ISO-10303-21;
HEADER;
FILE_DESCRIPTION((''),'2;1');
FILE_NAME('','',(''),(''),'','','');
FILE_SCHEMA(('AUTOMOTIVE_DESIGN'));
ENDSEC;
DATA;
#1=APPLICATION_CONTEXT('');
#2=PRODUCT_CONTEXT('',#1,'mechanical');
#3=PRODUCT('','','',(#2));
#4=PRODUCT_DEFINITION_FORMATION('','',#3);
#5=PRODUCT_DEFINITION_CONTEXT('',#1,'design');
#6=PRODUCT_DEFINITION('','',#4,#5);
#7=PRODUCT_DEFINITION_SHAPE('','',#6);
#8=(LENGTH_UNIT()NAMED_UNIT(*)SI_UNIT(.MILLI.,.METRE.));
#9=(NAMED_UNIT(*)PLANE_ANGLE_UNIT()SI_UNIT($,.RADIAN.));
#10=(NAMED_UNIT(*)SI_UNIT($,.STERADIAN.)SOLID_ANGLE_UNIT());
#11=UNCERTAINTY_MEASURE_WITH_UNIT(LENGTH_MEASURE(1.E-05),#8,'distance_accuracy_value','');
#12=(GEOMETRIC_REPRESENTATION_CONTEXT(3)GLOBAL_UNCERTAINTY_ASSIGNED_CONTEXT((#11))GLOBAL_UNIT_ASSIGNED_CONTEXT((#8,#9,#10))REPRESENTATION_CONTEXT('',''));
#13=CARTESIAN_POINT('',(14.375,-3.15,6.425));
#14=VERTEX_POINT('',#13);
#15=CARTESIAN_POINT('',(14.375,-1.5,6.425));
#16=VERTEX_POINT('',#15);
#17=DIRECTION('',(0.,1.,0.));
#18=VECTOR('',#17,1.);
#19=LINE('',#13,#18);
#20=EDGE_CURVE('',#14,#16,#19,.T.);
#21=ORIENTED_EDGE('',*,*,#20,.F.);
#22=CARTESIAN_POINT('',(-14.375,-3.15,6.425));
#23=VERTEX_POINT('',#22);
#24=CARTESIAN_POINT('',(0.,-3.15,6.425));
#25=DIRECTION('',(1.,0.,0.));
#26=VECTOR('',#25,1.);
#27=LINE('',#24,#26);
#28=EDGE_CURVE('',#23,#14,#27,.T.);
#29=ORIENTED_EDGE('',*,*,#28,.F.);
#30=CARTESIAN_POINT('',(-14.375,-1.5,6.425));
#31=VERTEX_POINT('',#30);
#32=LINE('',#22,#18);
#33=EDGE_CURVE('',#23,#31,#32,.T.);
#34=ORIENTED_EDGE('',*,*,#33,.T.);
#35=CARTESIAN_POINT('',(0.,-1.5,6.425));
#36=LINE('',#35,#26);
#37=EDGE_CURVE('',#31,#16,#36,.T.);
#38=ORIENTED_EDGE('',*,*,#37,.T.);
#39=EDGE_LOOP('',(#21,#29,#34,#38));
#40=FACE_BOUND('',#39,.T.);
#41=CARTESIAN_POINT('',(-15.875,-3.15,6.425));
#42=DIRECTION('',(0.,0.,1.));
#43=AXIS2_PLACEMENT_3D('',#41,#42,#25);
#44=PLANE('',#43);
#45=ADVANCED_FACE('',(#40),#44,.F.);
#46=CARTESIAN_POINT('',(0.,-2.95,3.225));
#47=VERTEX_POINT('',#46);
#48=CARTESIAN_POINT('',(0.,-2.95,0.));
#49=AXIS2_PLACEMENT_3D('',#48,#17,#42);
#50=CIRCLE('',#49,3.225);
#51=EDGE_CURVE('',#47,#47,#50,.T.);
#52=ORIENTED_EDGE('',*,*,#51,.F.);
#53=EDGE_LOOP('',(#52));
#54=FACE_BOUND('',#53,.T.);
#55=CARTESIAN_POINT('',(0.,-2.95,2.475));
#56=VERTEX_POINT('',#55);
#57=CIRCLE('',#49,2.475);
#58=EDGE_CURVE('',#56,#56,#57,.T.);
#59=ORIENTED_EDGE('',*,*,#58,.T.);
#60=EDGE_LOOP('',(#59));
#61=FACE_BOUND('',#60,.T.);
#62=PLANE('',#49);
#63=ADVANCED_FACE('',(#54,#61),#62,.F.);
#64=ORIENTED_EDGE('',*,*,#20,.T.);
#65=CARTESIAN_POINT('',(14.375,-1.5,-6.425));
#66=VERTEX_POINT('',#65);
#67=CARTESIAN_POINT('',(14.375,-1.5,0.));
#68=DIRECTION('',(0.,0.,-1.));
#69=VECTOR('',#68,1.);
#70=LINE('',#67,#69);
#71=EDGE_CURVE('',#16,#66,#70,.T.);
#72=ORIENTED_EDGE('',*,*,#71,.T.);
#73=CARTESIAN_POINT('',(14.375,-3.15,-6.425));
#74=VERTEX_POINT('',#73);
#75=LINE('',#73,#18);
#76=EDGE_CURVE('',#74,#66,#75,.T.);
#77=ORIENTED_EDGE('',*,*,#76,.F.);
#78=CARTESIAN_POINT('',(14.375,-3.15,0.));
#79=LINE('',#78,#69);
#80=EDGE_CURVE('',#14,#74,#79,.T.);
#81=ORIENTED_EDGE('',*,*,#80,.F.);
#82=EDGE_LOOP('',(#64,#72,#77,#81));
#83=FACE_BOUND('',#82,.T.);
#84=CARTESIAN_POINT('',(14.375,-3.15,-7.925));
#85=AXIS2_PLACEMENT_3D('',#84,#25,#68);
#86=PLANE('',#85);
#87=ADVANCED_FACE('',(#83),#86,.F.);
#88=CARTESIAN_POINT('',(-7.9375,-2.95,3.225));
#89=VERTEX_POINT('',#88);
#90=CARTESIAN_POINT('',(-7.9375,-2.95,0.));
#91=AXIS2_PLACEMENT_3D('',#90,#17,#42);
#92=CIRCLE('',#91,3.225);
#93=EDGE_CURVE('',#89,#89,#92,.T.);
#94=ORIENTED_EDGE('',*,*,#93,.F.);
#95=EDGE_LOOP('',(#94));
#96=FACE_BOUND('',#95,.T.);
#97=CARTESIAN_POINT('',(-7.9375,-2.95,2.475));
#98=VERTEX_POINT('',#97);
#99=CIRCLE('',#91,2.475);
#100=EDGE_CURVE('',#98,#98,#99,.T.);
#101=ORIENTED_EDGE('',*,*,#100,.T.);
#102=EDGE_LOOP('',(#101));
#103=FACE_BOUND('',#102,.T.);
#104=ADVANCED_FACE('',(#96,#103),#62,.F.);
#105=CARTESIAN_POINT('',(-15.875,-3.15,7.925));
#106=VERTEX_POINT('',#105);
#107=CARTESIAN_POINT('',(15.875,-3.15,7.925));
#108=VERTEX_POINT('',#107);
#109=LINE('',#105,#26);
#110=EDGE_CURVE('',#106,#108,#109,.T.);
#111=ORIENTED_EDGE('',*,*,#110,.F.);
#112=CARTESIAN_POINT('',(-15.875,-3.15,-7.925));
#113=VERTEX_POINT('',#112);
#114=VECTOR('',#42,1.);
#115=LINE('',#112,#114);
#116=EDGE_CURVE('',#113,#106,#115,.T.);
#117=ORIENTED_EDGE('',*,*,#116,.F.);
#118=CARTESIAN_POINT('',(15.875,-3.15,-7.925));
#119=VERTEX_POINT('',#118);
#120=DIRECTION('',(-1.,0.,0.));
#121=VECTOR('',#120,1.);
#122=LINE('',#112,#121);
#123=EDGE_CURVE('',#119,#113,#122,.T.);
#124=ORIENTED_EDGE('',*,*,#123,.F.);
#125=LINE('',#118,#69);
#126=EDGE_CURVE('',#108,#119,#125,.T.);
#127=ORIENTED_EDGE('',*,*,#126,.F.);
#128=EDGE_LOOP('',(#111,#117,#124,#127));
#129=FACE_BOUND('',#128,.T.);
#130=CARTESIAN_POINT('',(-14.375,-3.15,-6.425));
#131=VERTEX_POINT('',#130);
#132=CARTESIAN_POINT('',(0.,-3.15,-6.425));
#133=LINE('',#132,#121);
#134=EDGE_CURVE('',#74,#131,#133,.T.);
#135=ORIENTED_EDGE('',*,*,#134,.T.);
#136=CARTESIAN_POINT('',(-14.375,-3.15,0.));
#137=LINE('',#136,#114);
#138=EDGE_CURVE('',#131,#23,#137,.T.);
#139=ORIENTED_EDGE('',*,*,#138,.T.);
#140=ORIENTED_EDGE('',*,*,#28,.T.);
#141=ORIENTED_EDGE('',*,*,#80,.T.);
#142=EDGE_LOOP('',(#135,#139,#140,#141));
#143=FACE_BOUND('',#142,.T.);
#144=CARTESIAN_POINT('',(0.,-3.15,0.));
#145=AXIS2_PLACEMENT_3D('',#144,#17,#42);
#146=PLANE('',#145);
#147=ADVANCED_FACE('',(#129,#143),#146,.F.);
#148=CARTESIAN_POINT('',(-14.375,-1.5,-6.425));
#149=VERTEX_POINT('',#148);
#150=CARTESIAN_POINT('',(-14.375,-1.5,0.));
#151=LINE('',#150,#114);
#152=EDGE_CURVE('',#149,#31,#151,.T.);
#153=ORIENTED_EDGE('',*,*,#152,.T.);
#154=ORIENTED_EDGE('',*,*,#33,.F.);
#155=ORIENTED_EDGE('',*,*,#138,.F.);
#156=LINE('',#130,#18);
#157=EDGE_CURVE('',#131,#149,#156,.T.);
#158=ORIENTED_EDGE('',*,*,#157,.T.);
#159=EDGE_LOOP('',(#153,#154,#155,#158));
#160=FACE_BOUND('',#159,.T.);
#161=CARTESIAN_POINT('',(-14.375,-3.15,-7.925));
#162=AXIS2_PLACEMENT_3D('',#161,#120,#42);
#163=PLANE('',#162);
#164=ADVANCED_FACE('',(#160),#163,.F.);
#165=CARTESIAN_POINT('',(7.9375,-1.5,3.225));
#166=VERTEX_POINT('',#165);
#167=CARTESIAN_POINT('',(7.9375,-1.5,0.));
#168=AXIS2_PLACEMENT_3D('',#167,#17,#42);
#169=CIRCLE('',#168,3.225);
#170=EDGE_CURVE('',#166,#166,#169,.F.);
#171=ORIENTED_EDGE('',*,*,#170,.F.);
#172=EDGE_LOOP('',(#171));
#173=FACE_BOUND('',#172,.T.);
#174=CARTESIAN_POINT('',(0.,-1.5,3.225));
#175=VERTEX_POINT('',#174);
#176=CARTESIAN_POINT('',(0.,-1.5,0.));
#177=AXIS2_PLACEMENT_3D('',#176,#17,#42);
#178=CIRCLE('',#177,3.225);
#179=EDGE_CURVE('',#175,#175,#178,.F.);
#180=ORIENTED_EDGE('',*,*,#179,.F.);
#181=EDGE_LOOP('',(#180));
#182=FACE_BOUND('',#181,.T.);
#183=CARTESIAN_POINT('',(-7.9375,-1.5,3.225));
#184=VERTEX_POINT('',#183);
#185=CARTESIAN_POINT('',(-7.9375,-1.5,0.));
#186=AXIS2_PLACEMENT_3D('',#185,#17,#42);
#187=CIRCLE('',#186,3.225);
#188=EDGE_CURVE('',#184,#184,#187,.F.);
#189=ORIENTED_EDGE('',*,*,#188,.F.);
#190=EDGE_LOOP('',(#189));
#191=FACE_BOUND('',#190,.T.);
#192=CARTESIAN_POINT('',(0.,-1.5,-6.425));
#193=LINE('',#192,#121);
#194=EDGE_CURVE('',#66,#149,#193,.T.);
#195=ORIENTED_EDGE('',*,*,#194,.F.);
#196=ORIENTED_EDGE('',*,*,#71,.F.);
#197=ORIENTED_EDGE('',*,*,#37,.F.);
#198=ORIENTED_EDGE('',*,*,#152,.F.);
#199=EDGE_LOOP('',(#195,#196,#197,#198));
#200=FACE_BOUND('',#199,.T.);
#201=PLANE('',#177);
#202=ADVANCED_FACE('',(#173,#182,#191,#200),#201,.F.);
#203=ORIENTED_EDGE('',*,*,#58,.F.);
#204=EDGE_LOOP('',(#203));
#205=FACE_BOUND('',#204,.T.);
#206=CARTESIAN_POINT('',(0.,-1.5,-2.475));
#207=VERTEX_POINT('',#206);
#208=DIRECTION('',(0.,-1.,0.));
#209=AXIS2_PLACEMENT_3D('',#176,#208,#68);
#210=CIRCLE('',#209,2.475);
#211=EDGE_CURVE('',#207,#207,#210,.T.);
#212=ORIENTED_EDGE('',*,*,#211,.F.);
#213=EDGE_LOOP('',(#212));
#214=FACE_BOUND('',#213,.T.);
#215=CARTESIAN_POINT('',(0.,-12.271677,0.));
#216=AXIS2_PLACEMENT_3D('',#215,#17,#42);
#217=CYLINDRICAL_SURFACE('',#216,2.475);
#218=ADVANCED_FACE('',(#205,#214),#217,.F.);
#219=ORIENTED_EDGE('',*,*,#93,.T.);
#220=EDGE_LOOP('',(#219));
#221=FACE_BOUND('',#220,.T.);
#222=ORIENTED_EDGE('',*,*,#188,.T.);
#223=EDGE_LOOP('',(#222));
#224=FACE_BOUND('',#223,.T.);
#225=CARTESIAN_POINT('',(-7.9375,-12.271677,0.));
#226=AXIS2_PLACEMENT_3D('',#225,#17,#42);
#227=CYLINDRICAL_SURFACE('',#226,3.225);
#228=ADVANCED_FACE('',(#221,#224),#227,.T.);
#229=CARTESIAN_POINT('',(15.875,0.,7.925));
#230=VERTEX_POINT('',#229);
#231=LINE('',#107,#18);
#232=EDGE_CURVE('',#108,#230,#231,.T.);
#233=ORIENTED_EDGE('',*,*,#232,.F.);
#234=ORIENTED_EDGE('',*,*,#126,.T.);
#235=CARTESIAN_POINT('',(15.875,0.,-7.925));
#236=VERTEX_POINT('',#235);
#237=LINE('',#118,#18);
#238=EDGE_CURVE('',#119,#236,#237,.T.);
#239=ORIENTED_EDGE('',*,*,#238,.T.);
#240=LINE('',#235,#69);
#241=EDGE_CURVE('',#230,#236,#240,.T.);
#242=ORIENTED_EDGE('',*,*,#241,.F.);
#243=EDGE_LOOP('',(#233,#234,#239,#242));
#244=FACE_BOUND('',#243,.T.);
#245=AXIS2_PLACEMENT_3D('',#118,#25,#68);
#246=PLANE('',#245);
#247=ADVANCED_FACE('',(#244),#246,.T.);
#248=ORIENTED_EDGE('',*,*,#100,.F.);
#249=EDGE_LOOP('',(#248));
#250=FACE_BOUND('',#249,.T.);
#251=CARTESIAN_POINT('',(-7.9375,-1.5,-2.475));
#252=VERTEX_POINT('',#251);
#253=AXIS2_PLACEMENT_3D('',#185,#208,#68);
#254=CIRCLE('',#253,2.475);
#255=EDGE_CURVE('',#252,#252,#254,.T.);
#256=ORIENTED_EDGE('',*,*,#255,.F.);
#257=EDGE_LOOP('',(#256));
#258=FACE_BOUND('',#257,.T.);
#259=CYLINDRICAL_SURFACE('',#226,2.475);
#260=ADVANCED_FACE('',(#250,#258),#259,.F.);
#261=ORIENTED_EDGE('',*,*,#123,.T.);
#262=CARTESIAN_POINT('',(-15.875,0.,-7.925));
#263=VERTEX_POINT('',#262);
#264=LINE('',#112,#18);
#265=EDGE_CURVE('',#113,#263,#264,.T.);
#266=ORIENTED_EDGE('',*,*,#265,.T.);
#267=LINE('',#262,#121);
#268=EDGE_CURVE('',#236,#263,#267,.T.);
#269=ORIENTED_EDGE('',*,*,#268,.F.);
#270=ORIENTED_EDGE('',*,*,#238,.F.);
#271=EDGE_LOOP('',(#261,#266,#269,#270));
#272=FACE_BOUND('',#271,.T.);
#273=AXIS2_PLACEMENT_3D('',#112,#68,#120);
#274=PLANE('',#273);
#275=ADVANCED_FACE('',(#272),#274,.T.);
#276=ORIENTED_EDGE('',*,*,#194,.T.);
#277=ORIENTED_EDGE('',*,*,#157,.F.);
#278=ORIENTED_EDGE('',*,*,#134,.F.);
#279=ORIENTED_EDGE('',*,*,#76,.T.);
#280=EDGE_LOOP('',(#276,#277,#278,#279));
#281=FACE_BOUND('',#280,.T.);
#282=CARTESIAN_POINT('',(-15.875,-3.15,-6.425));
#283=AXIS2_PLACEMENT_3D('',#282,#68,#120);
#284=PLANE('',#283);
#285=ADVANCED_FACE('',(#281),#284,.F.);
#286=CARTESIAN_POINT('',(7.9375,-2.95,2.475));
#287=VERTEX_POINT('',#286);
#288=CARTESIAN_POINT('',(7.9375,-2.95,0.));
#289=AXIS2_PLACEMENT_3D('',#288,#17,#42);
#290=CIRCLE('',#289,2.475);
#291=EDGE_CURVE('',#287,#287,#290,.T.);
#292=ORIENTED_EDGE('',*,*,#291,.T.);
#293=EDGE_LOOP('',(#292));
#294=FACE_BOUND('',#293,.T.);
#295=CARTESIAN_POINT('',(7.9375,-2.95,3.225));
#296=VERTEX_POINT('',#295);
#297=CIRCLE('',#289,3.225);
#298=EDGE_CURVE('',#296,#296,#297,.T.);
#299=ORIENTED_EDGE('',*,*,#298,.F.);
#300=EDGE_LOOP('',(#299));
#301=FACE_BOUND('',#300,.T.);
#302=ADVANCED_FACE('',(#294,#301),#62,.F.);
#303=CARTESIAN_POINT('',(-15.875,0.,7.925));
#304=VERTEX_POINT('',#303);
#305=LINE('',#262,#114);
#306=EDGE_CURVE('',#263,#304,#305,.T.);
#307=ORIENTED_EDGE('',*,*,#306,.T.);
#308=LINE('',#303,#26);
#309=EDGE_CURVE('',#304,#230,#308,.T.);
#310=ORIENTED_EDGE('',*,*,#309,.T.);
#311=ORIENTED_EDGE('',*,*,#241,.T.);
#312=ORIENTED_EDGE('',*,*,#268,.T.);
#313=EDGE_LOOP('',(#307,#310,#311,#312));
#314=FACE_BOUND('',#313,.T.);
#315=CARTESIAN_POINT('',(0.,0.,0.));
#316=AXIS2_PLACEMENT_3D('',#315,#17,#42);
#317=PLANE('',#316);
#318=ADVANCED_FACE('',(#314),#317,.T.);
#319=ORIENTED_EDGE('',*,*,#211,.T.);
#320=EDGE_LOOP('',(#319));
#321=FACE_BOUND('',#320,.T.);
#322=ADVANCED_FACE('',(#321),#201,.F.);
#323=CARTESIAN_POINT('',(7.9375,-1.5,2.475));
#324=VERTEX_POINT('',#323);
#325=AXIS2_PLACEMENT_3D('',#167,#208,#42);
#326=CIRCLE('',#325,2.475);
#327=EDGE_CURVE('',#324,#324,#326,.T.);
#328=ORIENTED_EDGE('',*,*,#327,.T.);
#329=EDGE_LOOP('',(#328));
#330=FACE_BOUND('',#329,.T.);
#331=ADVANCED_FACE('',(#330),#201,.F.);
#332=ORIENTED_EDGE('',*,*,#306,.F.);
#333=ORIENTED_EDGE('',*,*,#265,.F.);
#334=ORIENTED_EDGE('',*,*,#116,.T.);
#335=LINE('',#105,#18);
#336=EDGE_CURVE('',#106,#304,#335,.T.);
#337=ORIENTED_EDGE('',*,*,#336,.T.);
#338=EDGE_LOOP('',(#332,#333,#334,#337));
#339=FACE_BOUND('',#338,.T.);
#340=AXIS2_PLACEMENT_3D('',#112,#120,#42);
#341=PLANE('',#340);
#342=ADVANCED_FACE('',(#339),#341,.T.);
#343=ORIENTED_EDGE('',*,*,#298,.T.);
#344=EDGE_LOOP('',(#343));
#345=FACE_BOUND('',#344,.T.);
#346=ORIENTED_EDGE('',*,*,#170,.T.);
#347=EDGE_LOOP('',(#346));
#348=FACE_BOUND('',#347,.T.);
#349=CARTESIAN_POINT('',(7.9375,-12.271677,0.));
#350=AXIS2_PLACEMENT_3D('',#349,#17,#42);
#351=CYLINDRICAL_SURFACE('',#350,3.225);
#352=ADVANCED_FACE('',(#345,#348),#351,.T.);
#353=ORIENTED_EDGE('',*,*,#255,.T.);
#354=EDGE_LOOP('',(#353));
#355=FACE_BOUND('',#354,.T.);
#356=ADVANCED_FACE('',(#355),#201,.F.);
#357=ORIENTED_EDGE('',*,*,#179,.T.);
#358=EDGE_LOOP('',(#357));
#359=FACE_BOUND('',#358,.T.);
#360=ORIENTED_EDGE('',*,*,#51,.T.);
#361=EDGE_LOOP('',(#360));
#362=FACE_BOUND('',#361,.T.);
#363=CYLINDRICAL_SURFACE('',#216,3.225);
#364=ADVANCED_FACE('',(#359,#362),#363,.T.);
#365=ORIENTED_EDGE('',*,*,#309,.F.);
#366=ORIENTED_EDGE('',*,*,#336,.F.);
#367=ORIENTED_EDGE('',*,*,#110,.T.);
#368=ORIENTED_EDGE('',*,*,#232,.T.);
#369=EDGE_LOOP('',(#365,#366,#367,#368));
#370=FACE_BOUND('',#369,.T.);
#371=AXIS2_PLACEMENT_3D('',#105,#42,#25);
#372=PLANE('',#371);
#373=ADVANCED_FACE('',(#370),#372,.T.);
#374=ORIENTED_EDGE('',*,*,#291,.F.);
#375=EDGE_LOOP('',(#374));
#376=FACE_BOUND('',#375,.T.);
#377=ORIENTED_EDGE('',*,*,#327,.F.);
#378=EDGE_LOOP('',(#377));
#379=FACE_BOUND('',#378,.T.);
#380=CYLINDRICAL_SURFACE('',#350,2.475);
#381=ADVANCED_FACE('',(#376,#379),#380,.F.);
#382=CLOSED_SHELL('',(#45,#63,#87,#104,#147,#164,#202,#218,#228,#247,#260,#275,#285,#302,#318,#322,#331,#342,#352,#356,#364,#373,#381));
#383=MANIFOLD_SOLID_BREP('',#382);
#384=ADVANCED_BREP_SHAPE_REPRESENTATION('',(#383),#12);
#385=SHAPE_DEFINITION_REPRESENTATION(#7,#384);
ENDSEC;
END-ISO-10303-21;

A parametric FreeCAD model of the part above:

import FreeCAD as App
import Part
import Sketcher


def faces_at(feature, points):
    """Names of the faces that lie closest to the given points."""
    faces = feature.Shape.Faces
    near = lambda p: min(range(len(faces)), key=lambda i: faces[i].distToShape(Part.Vertex(*p))[0])
    return sorted({f"Face{near(p) + 1}" for p in points})


def add_polygon(sketch, points):
    """Adds a closed chain of lines whose ends are joined by coincident constraints."""
    first, n = sketch.GeometryCount, len(points)
    for a, b in zip(points, points[1:] + points[:1]):
        sketch.addGeometry(Part.LineSegment(App.Vector(*a, 0), App.Vector(*b, 0)), False)
    for i in range(n):
        sketch.addConstraint(Sketcher.Constraint("Coincident", first + i, 2, first + (i + 1) % n, 1))

doc = App.newDocument("Part")
body = doc.addObject("PartDesign::Body", "Body")

sketch1 = body.newObject("Sketcher::SketchObject", "Sketch")
sketch1.AttachmentSupport = (doc.getObject("XZ_Plane"), [""])
sketch1.MapMode = "FlatFace"
add_polygon(sketch1, [(-16, -8), (-16, 8), (16, 8), (16, -8)])
sketch1.addConstraint(Sketcher.Constraint("Vertical", 0))
sketch1.addConstraint(Sketcher.Constraint("Horizontal", 1))
sketch1.addConstraint(Sketcher.Constraint("Vertical", 2))
sketch1.addConstraint(Sketcher.Constraint("Horizontal", 3))
sketch1.addConstraint(Sketcher.Constraint("Symmetric", 0, 2, 2, 2, -1, 1))
sketch1.addConstraint(Sketcher.Constraint("DistanceX", 1, 1, 1, 2, 31.75))
sketch1.addConstraint(Sketcher.Constraint("DistanceY", 0, 1, 0, 2, 15.85))
pad1 = body.newObject("PartDesign::Pad", "Pad")
pad1.Profile = sketch1
pad1.Length = 3.15
doc.recompute()

thickness = body.newObject("PartDesign::Thickness", "Thickness")
thickness.Base = (pad1, faces_at(pad1, [(0, -3.15, 0)]))
thickness.Value = 1.5
thickness.Reversed = True
thickness.Join = "Intersection"

sketch2 = body.newObject("Sketcher::SketchObject", "Sketch001")
sketch2.AttachmentSupport = (doc.getObject("XZ_Plane"), [""])
sketch2.MapMode = "FlatFace"
sketch2.AttachmentOffset = App.Placement(App.Vector(0, 0, 1.5), App.Rotation())
sketch2.addGeometry(Part.Circle(App.Vector(0, 0, 0), App.Vector(0, 0, 1), 3.2), False)
sketch2.addGeometry(Part.Circle(App.Vector(0, 0, 0), App.Vector(0, 0, 1), 2.5), False)
sketch2.addGeometry(Part.Circle(App.Vector(-7.9, 0, 0), App.Vector(0, 0, 1), 3.2), False)
sketch2.addGeometry(Part.Circle(App.Vector(-7.9, 0, 0), App.Vector(0, 0, 1), 2.5), False)
sketch2.addGeometry(Part.Circle(App.Vector(7.9, 0, 0), App.Vector(0, 0, 1), 3.2), False)
sketch2.addGeometry(Part.Circle(App.Vector(7.9, 0, 0), App.Vector(0, 0, 1), 2.5), False)
sketch2.addConstraint(Sketcher.Constraint("Coincident", 0, 3, -1, 1))
sketch2.addConstraint(Sketcher.Constraint("Coincident", 1, 3, -1, 1))
sketch2.addConstraint(Sketcher.Constraint("Coincident", 3, 3, 2, 3))
sketch2.addConstraint(Sketcher.Constraint("Coincident", 5, 3, 4, 3))
sketch2.addConstraint(Sketcher.Constraint("Equal", 0, 2))
sketch2.addConstraint(Sketcher.Constraint("Equal", 1, 3))
sketch2.addConstraint(Sketcher.Constraint("Equal", 2, 4))
sketch2.addConstraint(Sketcher.Constraint("Equal", 3, 5))
sketch2.addConstraint(Sketcher.Constraint("Symmetric", 2, 3, 4, 3, -1, 1))
sketch2.addConstraint(Sketcher.Constraint("PointOnObject", 2, 3, -1))
sketch2.addConstraint(Sketcher.Constraint("Diameter", 0, 6.45))
sketch2.addConstraint(Sketcher.Constraint("Diameter", 1, 4.95))
sketch2.addConstraint(Sketcher.Constraint("DistanceX", 2, 3, 4, 3, 15.875))
pad2 = body.newObject("PartDesign::Pad", "Pad001")
pad2.Profile = sketch2
pad2.Length = 1.45

doc.recompute()
